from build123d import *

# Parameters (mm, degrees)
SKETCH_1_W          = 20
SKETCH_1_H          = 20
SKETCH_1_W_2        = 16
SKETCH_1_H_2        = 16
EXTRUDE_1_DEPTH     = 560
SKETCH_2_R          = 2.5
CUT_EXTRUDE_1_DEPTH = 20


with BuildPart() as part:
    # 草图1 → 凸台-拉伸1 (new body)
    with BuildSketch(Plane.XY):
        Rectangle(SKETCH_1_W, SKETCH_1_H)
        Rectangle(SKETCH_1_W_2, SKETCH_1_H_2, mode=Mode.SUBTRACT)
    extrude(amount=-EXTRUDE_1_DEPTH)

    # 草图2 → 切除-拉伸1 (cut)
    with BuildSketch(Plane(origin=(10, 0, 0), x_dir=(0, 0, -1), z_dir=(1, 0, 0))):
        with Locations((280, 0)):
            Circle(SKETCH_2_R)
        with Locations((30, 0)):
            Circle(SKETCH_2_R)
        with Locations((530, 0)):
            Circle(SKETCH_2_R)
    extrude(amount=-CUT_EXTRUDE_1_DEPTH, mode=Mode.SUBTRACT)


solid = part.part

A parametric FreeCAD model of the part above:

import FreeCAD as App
import Part
import Sketcher


def add_polygon(sketch, points):
    """Adds a closed chain of lines whose ends are joined by coincident constraints."""
    first, n = sketch.GeometryCount, len(points)
    for a, b in zip(points, points[1:] + points[:1]):
        sketch.addGeometry(Part.LineSegment(App.Vector(*a, 0), App.Vector(*b, 0)), False)
    for i in range(n):
        sketch.addConstraint(Sketcher.Constraint("Coincident", first + i, 2, first + (i + 1) % n, 1))

doc = App.newDocument("Part")
params = doc.addObject("Spreadsheet::Sheet", "Params")
for row, (alias, value) in enumerate([
    ("sketch1_width", "20 mm"),
    ("sketch1_width2", "16 mm"),
    ("pad1_length", "560 mm"),
    ("sketch2_diameter", "5 mm"),
    ("pocket1_length", "20 mm"),
], start=1):
    params.set(f"A{row}", alias)
    params.set(f"B{row}", "=" + value)
    params.setAlias(f"B{row}", alias)

body = doc.addObject("PartDesign::Body", "Body")

# Sketch on XY plane
sketch1 = body.newObject("Sketcher::SketchObject", "Sketch")
sketch1.AttachmentSupport = (doc.getObject("XY_Plane"), [""])
sketch1.MapMode = "FlatFace"
add_polygon(sketch1, [(-10, 10), (-10, -10), (10, -10), (10, 10)])  # lines 0-3
add_polygon(sketch1, [(8, -8), (-8, -8), (-8, 8), (8, 8)])  # lines 4-7
sketch1.addConstraint([
    Sketcher.Constraint("Vertical", 0),
    Sketcher.Constraint("Horizontal", 1),
    Sketcher.Constraint("Vertical", 2),
    Sketcher.Constraint("Horizontal", 3),
    Sketcher.Constraint("Horizontal", 4),
    Sketcher.Constraint("Vertical", 5),
    Sketcher.Constraint("Horizontal", 6),
    Sketcher.Constraint("Vertical", 7),
    Sketcher.Constraint("Symmetric", 0, 2, 2, 2, -1, 1),
    Sketcher.Constraint("Symmetric", 4, 2, 6, 2, -1, 1),
    Sketcher.Constraint("Equal", 3, 0),
    Sketcher.Constraint("Equal", 6, 5),
    Sketcher.Constraint("DistanceX", 1, 1, 1, 2, 20.0),
    Sketcher.Constraint("DistanceX", 4, 2, 4, 1, 16.0),
])
sketch1.setExpression("Constraints[20]", "Params.sketch1_width")
sketch1.setExpression("Constraints[21]", "Params.sketch1_width2")
pad1 = body.newObject("PartDesign::Pad", "Pad")
pad1.Profile = sketch1
pad1.setExpression("Length", "Params.pad1_length")
pad1.Reversed = True

# Sketch on YZ plane
sketch2 = body.newObject("Sketcher::SketchObject", "Sketch001")
sketch2.AttachmentSupport = (doc.getObject("YZ_Plane"), [""])
sketch2.MapMode = "FlatFace"
sketch2.AttachmentOffset = App.Placement(App.Vector(0, 0, 10), App.Rotation())
sketch2.addGeometry([
    Part.Circle(App.Vector(0, -280, 0), App.Vector(0, 0, 1), 2.5),
    Part.Circle(App.Vector(0, -30, 0), App.Vector(0, 0, 1), 2.5),
    Part.Circle(App.Vector(0, -530, 0), App.Vector(0, 0, 1), 2.5),
], False)
sketch2.addConstraint([
    Sketcher.Constraint("Equal", 0, 1),
    Sketcher.Constraint("Equal", 1, 2),
    Sketcher.Constraint("PointOnObject", 0, 3, -2),
    Sketcher.Constraint("PointOnObject", 1, 3, -2),
    Sketcher.Constraint("PointOnObject", 2, 3, -2),
    Sketcher.Constraint("Diameter", 0, 5.0),
    Sketcher.Constraint("DistanceY", 0, 3, -1, 1, 280.0),
    Sketcher.Constraint("DistanceY", 1, 3, -1, 1, 30.0),
    Sketcher.Constraint("DistanceY", 2, 3, -1, 1, 530.0),
])
sketch2.setExpression("Constraints[5]", "Params.sketch2_diameter")
pocket1 = body.newObject("PartDesign::Pocket", "Pocket")
pocket1.Profile = sketch2
pocket1.setExpression("Length", "Params.pocket1_length")

doc.recompute()
